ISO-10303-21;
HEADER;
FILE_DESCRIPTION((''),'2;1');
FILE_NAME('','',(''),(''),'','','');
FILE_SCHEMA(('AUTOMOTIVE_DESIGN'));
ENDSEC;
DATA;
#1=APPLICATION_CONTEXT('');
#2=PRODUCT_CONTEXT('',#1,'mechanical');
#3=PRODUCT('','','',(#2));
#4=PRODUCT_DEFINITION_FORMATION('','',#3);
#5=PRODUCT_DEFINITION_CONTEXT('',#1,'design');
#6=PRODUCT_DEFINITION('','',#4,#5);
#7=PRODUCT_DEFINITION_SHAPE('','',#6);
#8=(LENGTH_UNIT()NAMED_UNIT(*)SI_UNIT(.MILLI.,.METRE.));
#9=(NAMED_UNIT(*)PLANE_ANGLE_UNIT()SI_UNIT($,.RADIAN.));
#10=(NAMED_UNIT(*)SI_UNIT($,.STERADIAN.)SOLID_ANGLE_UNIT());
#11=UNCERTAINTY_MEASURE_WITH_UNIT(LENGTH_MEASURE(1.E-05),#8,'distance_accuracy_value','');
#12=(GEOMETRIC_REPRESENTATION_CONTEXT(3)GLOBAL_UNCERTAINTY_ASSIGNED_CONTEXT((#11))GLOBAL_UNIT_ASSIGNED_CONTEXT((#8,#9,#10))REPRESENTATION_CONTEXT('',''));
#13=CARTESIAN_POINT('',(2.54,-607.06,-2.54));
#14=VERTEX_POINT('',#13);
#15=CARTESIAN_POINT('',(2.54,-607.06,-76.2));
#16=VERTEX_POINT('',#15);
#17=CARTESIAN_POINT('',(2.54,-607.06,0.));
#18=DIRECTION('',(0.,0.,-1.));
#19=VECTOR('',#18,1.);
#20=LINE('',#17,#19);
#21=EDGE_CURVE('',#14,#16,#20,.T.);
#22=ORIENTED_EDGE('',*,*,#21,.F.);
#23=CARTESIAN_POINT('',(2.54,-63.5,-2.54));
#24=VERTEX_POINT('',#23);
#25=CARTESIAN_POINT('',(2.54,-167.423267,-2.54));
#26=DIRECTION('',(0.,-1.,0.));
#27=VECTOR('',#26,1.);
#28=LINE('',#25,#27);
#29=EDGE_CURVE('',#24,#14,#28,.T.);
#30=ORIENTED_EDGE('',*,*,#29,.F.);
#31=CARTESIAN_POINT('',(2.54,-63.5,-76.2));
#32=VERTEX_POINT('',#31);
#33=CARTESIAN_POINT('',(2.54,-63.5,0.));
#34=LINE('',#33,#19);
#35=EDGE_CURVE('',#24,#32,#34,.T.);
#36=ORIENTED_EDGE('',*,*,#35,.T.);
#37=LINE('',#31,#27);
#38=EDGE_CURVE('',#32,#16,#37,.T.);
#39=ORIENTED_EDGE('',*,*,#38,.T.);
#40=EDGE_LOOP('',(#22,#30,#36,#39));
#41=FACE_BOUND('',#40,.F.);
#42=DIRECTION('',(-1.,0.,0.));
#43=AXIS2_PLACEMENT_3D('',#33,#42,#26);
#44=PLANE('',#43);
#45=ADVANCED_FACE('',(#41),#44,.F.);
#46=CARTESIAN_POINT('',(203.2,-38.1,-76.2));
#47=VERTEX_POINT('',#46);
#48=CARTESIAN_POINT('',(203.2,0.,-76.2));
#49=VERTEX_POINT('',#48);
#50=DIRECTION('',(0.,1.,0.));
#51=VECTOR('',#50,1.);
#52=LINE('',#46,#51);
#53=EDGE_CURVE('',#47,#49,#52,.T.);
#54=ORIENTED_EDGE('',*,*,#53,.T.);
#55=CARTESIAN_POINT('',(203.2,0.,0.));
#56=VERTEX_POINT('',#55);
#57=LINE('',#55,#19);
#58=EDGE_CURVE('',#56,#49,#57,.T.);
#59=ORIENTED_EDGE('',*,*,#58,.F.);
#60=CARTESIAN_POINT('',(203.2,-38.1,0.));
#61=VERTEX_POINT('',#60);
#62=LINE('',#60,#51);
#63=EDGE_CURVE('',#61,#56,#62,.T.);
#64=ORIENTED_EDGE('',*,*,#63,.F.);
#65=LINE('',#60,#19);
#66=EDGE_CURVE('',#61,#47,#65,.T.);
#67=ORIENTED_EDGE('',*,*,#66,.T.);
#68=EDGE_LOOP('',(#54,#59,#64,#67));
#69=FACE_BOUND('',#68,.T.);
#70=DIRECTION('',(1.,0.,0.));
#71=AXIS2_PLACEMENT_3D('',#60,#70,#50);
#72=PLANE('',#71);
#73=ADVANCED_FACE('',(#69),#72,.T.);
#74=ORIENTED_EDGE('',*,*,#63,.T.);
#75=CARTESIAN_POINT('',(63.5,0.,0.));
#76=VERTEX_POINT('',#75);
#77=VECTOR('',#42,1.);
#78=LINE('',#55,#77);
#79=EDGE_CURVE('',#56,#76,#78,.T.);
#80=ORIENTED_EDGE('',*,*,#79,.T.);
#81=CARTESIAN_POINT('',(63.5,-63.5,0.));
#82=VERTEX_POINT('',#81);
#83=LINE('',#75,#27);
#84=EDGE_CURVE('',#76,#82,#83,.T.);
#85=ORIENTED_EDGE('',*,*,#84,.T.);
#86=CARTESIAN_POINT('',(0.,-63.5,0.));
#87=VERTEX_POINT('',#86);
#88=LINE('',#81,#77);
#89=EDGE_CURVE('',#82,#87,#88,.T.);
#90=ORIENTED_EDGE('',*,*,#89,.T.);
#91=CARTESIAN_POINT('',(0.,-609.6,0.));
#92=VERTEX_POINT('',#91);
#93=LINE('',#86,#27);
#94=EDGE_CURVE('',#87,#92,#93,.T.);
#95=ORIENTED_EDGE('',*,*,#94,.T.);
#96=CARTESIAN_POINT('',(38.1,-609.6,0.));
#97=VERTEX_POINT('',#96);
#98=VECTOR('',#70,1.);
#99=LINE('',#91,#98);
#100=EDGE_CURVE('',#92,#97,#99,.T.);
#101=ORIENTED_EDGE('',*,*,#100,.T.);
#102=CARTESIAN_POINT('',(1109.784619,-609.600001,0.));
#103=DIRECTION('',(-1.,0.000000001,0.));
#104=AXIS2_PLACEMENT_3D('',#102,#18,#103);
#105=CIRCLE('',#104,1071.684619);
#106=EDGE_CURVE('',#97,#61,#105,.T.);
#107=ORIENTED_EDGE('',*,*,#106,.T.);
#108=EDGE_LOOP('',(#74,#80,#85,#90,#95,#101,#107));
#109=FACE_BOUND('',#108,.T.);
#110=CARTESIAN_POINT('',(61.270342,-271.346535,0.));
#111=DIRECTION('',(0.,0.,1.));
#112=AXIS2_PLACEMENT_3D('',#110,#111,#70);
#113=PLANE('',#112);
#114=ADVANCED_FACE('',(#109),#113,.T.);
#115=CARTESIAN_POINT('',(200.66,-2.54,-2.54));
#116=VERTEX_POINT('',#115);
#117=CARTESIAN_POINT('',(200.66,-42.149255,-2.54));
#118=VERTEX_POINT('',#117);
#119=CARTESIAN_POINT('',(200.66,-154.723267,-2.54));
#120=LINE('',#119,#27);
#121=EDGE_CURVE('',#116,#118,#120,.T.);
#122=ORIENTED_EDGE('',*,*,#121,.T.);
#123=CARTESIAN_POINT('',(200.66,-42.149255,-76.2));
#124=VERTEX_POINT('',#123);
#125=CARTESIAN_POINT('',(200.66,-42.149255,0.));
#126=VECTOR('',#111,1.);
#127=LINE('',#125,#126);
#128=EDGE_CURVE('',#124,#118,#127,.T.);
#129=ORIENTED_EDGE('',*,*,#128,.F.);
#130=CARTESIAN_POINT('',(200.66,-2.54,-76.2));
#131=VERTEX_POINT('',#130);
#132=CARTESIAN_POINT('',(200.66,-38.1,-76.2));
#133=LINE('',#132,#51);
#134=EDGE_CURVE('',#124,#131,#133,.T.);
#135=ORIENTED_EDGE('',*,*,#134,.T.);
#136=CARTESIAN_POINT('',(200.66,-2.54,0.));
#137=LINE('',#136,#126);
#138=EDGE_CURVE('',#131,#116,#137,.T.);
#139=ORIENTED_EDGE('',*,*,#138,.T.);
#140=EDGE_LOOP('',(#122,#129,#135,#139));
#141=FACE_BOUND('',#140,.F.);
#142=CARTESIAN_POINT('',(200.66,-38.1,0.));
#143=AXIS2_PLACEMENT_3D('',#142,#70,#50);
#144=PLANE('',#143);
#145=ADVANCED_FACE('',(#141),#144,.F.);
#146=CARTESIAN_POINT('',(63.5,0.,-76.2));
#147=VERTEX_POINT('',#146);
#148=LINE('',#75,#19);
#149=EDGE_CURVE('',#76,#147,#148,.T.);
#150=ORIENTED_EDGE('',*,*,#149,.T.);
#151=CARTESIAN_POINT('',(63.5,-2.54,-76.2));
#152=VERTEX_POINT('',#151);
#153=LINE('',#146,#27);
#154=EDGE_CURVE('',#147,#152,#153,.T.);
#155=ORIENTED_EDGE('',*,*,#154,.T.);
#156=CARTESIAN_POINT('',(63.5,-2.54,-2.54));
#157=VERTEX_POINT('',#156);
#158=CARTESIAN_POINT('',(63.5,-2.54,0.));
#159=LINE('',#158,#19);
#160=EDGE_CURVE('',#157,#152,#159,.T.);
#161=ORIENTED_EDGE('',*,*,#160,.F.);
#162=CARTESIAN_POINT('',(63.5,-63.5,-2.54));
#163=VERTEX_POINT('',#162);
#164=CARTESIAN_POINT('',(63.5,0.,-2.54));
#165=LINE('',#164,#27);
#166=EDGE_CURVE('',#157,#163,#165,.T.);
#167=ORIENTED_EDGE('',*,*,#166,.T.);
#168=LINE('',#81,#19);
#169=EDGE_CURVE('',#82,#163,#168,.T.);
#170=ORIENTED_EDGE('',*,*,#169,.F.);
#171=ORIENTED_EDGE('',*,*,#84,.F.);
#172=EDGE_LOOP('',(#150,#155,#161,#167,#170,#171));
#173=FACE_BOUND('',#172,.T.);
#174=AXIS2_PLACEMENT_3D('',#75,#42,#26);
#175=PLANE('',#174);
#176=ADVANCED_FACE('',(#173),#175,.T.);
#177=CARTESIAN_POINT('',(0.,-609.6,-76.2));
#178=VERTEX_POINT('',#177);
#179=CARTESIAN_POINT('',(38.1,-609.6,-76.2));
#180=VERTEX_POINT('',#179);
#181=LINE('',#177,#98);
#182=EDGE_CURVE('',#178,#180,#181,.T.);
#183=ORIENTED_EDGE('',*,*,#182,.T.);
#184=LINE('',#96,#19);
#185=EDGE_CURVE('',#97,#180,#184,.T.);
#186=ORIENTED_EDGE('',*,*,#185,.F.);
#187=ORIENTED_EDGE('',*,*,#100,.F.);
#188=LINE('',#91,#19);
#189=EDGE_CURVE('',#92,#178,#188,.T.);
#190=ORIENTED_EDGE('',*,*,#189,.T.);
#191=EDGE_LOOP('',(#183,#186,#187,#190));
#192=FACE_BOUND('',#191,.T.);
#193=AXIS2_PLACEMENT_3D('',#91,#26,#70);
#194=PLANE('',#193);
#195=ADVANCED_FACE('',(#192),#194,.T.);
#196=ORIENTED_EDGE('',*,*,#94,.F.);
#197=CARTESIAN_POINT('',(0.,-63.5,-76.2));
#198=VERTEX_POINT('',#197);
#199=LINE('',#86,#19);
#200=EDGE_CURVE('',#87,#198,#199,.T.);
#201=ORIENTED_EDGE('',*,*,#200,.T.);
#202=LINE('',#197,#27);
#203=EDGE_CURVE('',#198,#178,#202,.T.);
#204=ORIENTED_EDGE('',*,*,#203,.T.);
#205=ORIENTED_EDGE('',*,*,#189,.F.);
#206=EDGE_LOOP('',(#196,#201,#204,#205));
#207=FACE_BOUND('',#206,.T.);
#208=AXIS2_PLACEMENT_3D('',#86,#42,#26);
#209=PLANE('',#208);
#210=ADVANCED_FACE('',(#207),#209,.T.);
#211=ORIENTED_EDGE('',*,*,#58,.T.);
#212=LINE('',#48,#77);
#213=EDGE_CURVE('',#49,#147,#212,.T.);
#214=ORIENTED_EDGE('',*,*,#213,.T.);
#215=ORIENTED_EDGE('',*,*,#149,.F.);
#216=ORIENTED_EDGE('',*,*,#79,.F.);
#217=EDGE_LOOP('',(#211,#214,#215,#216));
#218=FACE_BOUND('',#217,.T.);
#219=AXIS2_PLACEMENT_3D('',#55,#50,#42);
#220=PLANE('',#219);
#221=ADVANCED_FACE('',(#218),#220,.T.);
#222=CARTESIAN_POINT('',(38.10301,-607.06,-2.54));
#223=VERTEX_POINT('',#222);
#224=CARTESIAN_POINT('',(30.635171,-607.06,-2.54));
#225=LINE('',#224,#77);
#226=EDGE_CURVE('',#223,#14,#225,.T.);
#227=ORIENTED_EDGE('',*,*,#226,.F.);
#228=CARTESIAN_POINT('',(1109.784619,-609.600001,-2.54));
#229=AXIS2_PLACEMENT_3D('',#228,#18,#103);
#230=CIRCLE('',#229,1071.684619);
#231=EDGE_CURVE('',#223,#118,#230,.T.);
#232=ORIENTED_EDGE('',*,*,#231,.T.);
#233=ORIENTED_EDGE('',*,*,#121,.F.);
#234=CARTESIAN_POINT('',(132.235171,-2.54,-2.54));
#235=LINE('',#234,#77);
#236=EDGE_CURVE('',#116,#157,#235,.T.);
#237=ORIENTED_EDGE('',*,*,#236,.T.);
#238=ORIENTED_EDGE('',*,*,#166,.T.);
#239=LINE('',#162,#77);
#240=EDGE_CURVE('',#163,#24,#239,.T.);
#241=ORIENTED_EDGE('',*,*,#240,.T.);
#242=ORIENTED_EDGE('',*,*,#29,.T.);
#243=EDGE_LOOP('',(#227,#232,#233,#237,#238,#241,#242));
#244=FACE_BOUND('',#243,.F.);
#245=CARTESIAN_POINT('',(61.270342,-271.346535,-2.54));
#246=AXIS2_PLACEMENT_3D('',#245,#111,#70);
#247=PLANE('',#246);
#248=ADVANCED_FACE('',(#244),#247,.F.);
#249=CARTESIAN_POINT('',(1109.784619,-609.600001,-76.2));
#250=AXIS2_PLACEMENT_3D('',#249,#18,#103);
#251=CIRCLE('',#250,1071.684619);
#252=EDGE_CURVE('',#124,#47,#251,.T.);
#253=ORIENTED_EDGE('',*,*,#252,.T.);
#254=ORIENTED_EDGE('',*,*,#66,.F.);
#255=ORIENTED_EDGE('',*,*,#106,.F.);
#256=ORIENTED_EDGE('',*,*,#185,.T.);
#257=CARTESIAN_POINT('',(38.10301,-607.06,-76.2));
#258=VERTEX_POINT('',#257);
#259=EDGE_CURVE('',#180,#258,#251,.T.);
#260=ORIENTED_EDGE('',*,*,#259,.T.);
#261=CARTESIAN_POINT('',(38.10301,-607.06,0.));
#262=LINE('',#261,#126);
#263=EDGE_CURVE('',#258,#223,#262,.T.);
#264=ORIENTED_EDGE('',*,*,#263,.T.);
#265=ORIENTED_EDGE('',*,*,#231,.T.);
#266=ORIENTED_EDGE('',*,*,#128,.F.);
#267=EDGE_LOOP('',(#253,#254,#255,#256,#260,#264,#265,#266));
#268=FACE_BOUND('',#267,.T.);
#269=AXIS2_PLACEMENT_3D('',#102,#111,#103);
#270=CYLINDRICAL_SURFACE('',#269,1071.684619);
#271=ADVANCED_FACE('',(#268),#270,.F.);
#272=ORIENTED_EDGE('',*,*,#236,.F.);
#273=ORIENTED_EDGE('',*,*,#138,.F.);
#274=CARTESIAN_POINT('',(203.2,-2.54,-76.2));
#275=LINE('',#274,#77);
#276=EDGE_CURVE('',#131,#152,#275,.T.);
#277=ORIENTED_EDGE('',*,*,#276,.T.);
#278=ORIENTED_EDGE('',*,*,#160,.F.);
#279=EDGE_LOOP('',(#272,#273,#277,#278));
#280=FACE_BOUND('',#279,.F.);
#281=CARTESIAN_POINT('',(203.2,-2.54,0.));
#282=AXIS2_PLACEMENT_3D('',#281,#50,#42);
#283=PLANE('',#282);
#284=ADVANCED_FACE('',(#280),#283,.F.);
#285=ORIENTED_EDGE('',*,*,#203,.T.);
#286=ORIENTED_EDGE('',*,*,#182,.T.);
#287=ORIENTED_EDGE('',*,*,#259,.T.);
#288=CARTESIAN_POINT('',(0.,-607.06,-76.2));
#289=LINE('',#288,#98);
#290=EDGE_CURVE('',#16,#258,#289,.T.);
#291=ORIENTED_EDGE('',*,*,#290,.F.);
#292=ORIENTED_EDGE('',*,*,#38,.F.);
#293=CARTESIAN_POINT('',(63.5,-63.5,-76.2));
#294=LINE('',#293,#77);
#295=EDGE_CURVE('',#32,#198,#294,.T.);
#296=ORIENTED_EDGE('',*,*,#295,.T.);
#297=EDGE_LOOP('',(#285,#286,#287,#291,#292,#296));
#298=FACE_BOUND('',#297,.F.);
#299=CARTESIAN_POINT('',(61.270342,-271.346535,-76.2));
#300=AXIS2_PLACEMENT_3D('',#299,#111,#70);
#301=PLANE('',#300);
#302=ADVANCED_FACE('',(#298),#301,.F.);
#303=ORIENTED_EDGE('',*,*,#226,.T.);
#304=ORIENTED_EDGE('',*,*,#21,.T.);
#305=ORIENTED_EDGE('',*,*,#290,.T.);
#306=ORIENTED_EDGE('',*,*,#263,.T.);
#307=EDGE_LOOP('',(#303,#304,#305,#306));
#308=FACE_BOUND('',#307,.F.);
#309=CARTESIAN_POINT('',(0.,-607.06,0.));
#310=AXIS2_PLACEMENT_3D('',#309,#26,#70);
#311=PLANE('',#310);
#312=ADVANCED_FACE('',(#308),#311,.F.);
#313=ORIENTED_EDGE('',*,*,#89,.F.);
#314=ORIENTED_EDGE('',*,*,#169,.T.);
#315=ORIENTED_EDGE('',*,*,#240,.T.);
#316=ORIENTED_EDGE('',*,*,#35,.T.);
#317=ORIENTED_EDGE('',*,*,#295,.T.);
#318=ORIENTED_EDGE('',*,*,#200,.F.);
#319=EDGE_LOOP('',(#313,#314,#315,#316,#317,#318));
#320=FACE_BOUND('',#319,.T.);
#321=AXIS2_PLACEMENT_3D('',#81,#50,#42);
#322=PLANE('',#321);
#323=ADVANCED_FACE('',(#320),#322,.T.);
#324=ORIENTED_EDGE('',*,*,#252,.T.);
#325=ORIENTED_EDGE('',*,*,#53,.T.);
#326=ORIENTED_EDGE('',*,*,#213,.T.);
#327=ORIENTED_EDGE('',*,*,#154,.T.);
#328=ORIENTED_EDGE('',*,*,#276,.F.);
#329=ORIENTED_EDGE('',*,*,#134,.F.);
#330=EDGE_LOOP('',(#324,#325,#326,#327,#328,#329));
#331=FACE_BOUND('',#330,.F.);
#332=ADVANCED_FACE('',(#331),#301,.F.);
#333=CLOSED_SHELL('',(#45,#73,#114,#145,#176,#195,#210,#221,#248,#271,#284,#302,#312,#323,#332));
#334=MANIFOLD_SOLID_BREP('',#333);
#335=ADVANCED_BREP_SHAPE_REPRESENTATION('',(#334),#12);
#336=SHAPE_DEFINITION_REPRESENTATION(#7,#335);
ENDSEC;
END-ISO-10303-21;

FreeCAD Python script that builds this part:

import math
import FreeCAD as App
import Part
import Sketcher

V = App.Vector
Q = App.Units.Quantity


def faces_at(feature, points):
    """Names of the faces that lie closest to the given points."""
    faces = feature.Shape.Faces
    near = lambda p: min(range(len(faces)), key=lambda i: faces[i].distToShape(Part.Vertex(*p))[0])
    return sorted({f"Face{near(p) + 1}" for p in points})

doc = App.newDocument("Part")
params = doc.addObject("Spreadsheet::Sheet", "Params")
for row, (alias, value) in enumerate([
    ("sketch1_width", "5.5 in"),
    ("sketch1_width2", "2.5 in"),
    ("sketch1_width3", "1.5 in"),
    ("sketch1_height", "21.5 in"),
    ("pad1_length", "3 in"),
    ("thickness_wall", "0.1 in"),
], start=1):
    params.set(f"A{row}", alias)
    params.set(f"B{row}", "=" + value)
    params.setAlias(f"B{row}", alias)

body = doc.addObject("PartDesign::Body", "Body")

# Sketch on XY plane
sketch1 = doc.addObject("Sketcher::SketchObject", "Sketch")
body.addObject(sketch1)
sketch1.AttachmentSupport = (doc.XY_Plane, [""])
sketch1.MapMode = "FlatFace"
sketch1.addGeometry(Part.LineSegment(V(203, 0, 0), V(64, 0, 0)), False)
sketch1.addGeometry(Part.LineSegment(V(64, 0, 0), V(64, -64, 0)), False)
sketch1.addGeometry(Part.LineSegment(V(64, -64, 0), V(0, -64, 0)), False)
sketch1.addGeometry(Part.LineSegment(V(0, -64, 0), V(0, -610, 0)), False)
sketch1.addGeometry(Part.LineSegment(V(0, -610, 0), V(38, -610, 0)), False)
sketch1.addGeometry(Part.ArcOfCircle(Part.Circle(V(1110, -610, 0), V(0, 0, 1), 1072), math.radians(148), math.radians(180)), False)
sketch1.addGeometry(Part.LineSegment(V(203, -38, 0), V(203, 0, 0)), False)
sketch1.addConstraint(Sketcher.Constraint("Coincident", 0, 2, 1, 1))
sketch1.addConstraint(Sketcher.Constraint("Coincident", 1, 2, 2, 1))
sketch1.addConstraint(Sketcher.Constraint("Coincident", 2, 2, 3, 1))
sketch1.addConstraint(Sketcher.Constraint("Coincident", 3, 2, 4, 1))
sketch1.addConstraint(Sketcher.Constraint("Coincident", 4, 2, 5, 2))
sketch1.addConstraint(Sketcher.Constraint("Coincident", 5, 1, 6, 1))
sketch1.addConstraint(Sketcher.Constraint("Coincident", 6, 2, 0, 1))
sketch1.addConstraint(Sketcher.Constraint("Horizontal", 0))
sketch1.addConstraint(Sketcher.Constraint("Vertical", 1))
sketch1.addConstraint(Sketcher.Constraint("Horizontal", 2))
sketch1.addConstraint(Sketcher.Constraint("Vertical", 3))
sketch1.addConstraint(Sketcher.Constraint("Horizontal", 4))
sketch1.addConstraint(Sketcher.Constraint("Vertical", 6))
sketch1.addConstraint(Sketcher.Constraint("PointOnObject", 0, 2, -1))
sketch1.addConstraint(Sketcher.Constraint("PointOnObject", 2, 2, -2))
sketch1.addConstraint(Sketcher.Constraint("Horizontal", 5, 3, 3, 2))
sketch1.addConstraint(Sketcher.Constraint("Equal", 2, 1))
sketch1.addConstraint(Sketcher.Constraint("Equal", 4, 6))
sketch1.addConstraint(Sketcher.Constraint("DistanceX", 0, 2, 0, 1, Q("5.5 in")))
sketch1.addConstraint(Sketcher.Constraint("DistanceX", 2, 2, 2, 1, Q("2.5 in")))
sketch1.addConstraint(Sketcher.Constraint("DistanceX", 4, 1, 4, 2, Q("1.5 in")))
sketch1.addConstraint(Sketcher.Constraint("DistanceY", 3, 2, 3, 1, Q("21.5 in")))
sketch1.setExpression("Constraints[18]", "Params.sketch1_width")
sketch1.setExpression("Constraints[19]", "Params.sketch1_width2")
sketch1.setExpression("Constraints[20]", "Params.sketch1_width3")
sketch1.setExpression("Constraints[21]", "Params.sketch1_height")
pad1 = doc.addObject("PartDesign::Pad", "Pad")
body.addObject(pad1)
pad1.Profile = sketch1
pad1.setExpression("Length", "Params.pad1_length")
pad1.Reversed = True
doc.recompute()

thickness = doc.addObject("PartDesign::Thickness", "Thickness")
body.addObject(thickness)
thickness.Base = (pad1, faces_at(pad1, [
    (20.32, -304.8, -76.2),
    (80.202, -312.165, -38.1),
    (31.75, -63.5, -38.1),
    (63.5, -31.75, -38.1),
]))
thickness.setExpression("Value", "Params.thickness_wall")
thickness.Reversed = True
thickness.Join = "Arc"

doc.recompute()
